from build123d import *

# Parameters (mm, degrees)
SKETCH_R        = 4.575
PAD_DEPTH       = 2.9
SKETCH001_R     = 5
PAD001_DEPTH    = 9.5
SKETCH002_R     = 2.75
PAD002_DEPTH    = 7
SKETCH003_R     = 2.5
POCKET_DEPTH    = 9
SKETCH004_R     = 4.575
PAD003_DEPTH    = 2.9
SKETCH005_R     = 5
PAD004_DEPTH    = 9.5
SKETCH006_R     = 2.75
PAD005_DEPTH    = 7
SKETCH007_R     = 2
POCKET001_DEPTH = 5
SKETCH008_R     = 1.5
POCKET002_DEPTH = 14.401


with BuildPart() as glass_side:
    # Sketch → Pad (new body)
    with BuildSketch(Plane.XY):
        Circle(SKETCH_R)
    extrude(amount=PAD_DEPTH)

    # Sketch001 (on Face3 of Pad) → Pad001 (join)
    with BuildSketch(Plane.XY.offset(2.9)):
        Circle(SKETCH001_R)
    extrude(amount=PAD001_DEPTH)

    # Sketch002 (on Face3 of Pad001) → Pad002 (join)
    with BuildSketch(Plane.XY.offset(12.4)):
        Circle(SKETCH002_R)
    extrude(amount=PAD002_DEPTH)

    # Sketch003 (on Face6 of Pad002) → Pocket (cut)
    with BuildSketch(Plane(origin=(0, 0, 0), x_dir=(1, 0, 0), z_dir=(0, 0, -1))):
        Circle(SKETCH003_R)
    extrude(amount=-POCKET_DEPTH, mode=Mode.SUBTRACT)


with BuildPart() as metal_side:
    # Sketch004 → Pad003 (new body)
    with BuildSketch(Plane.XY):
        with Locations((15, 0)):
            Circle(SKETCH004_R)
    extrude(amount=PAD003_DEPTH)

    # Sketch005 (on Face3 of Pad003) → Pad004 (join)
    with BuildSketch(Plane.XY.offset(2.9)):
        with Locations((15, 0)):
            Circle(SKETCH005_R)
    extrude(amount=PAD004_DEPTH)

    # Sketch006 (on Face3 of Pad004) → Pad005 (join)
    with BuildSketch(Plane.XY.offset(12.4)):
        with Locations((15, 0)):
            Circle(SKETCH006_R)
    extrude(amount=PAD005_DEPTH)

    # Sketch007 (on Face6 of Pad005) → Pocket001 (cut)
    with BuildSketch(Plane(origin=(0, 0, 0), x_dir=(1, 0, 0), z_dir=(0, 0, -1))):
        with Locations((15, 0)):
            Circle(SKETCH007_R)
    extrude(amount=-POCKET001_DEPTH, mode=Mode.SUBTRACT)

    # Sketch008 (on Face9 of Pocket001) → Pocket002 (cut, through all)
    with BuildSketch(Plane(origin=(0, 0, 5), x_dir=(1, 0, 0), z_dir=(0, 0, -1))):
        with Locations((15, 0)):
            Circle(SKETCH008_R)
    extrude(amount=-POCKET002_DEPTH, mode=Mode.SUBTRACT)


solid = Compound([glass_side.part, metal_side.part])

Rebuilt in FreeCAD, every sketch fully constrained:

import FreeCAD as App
import Part
import Sketcher
from FreeCAD import Vector
Q = App.Units.Quantity

doc = App.newDocument("Part")
body = doc.addObject("PartDesign::Body", "Body")

sketch1 = body.newObject("Sketcher::SketchObject", "Sketch")
sketch1.AttachmentSupport = (doc.getObject("XY_Plane"), [""])
sketch1.MapMode = "FlatFace"
sketch1.addGeometry(Part.Circle(Vector(0, 0, 0), Vector(0, 0, 1), 4.575), False)
sketch1.addConstraint(Sketcher.Constraint("Coincident", 0, 3, -1, 1))
sketch1.addConstraint(Sketcher.Constraint("Diameter", 0, Q("9.15 mm")))
pad1 = body.newObject("PartDesign::Pad", "Pad")
pad1.Profile = sketch1
pad1.Length = 2.9

sketch2 = body.newObject("Sketcher::SketchObject", "Sketch001")
sketch2.AttachmentSupport = (doc.getObject("XY_Plane"), [""])
sketch2.MapMode = "FlatFace"
sketch2.AttachmentOffset = App.Placement(Vector(0, 0, 2.9), App.Rotation())
sketch2.addGeometry(Part.Circle(Vector(0, 0, 0), Vector(0, 0, 1), 5), False)
sketch2.addConstraint(Sketcher.Constraint("Coincident", 0, 3, -1, 1))
sketch2.addConstraint(Sketcher.Constraint("Diameter", 0, Q("10 mm")))
pad2 = body.newObject("PartDesign::Pad", "Pad001")
pad2.Profile = sketch2
pad2.Length = 9.5

sketch3 = body.newObject("Sketcher::SketchObject", "Sketch002")
sketch3.AttachmentSupport = (doc.getObject("XY_Plane"), [""])
sketch3.MapMode = "FlatFace"
sketch3.AttachmentOffset = App.Placement(Vector(0, 0, 12.4), App.Rotation())
sketch3.addGeometry(Part.Circle(Vector(0, 0, 0), Vector(0, 0, 1), 2.75), False)
sketch3.addConstraint(Sketcher.Constraint("Coincident", 0, 3, -1, 1))
sketch3.addConstraint(Sketcher.Constraint("Diameter", 0, Q("5.5 mm")))
pad3 = body.newObject("PartDesign::Pad", "Pad002")
pad3.Profile = sketch3
pad3.Length = 7

sketch4 = body.newObject("Sketcher::SketchObject", "Sketch003")
sketch4.AttachmentSupport = (doc.getObject("XY_Plane"), [""])
sketch4.MapMode = "FlatFace"
sketch4.addGeometry(Part.Circle(Vector(0, 0, 0), Vector(0, 0, 1), 2.5), False)
sketch4.addConstraint(Sketcher.Constraint("Coincident", 0, 3, -1, 1))
sketch4.addConstraint(Sketcher.Constraint("Diameter", 0, Q("5 mm")))
pocket1 = body.newObject("PartDesign::Pocket", "Pocket")
pocket1.Profile = sketch4
pocket1.Length = 9
pocket1.Reversed = True
body2 = doc.addObject("PartDesign::Body", "Body001")

sketch5 = body2.newObject("Sketcher::SketchObject", "Sketch004")
sketch5.AttachmentSupport = (doc.getObject("XY_Plane001"), [""])
sketch5.MapMode = "FlatFace"
sketch5.addGeometry(Part.Circle(Vector(15, 0, 0), Vector(0, 0, 1), 4.575), False)
sketch5.addConstraint(Sketcher.Constraint("PointOnObject", 0, 3, -1))
sketch5.addConstraint(Sketcher.Constraint("Diameter", 0, Q("9.15 mm")))
sketch5.addConstraint(Sketcher.Constraint("DistanceX", -1, 1, 0, 3, Q("15 mm")))
pad4 = body2.newObject("PartDesign::Pad", "Pad003")
pad4.Profile = sketch5
pad4.Length = 2.9

sketch6 = body2.newObject("Sketcher::SketchObject", "Sketch005")
sketch6.AttachmentSupport = (doc.getObject("XY_Plane001"), [""])
sketch6.MapMode = "FlatFace"
sketch6.AttachmentOffset = App.Placement(Vector(0, 0, 2.9), App.Rotation())
sketch6.addGeometry(Part.Circle(Vector(15, 0, 0), Vector(0, 0, 1), 5), False)
sketch6.addConstraint(Sketcher.Constraint("PointOnObject", 0, 3, -1))
sketch6.addConstraint(Sketcher.Constraint("Diameter", 0, Q("10 mm")))
sketch6.addConstraint(Sketcher.Constraint("DistanceX", -1, 1, 0, 3, Q("15 mm")))
pad5 = body2.newObject("PartDesign::Pad", "Pad004")
pad5.Profile = sketch6
pad5.Length = 9.5

sketch7 = body2.newObject("Sketcher::SketchObject", "Sketch006")
sketch7.AttachmentSupport = (doc.getObject("XY_Plane001"), [""])
sketch7.MapMode = "FlatFace"
sketch7.AttachmentOffset = App.Placement(Vector(0, 0, 12.4), App.Rotation())
sketch7.addGeometry(Part.Circle(Vector(15, 0, 0), Vector(0, 0, 1), 2.75), False)
sketch7.addConstraint(Sketcher.Constraint("PointOnObject", 0, 3, -1))
sketch7.addConstraint(Sketcher.Constraint("Diameter", 0, Q("5.5 mm")))
sketch7.addConstraint(Sketcher.Constraint("DistanceX", -1, 1, 0, 3, Q("15 mm")))
pad6 = body2.newObject("PartDesign::Pad", "Pad005")
pad6.Profile = sketch7
pad6.Length = 7

sketch8 = body2.newObject("Sketcher::SketchObject", "Sketch007")
sketch8.AttachmentSupport = (doc.getObject("XY_Plane001"), [""])
sketch8.MapMode = "FlatFace"
sketch8.addGeometry(Part.Circle(Vector(15, 0, 0), Vector(0, 0, 1), 2), False)
sketch8.addConstraint(Sketcher.Constraint("PointOnObject", 0, 3, -1))
sketch8.addConstraint(Sketcher.Constraint("Diameter", 0, Q("4 mm")))
sketch8.addConstraint(Sketcher.Constraint("DistanceX", -1, 1, 0, 3, Q("15 mm")))
pocket2 = body2.newObject("PartDesign::Pocket", "Pocket001")
pocket2.Profile = sketch8
pocket2.Length = 5
pocket2.Reversed = True

sketch9 = body2.newObject("Sketcher::SketchObject", "Sketch008")
sketch9.AttachmentSupport = (doc.getObject("XY_Plane001"), [""])
sketch9.MapMode = "FlatFace"
sketch9.AttachmentOffset = App.Placement(Vector(0, 0, 5), App.Rotation())
sketch9.addGeometry(Part.Circle(Vector(15, 0, 0), Vector(0, 0, 1), 1.5), False)
sketch9.addConstraint(Sketcher.Constraint("PointOnObject", 0, 3, -1))
sketch9.addConstraint(Sketcher.Constraint("Diameter", 0, Q("3 mm")))
sketch9.addConstraint(Sketcher.Constraint("DistanceX", -1, 1, 0, 3, Q("15 mm")))
pocket3 = body2.newObject("PartDesign::Pocket", "Pocket002")
pocket3.Profile = sketch9
pocket3.Type = "ThroughAll"
pocket3.Reversed = True

doc.recompute()
